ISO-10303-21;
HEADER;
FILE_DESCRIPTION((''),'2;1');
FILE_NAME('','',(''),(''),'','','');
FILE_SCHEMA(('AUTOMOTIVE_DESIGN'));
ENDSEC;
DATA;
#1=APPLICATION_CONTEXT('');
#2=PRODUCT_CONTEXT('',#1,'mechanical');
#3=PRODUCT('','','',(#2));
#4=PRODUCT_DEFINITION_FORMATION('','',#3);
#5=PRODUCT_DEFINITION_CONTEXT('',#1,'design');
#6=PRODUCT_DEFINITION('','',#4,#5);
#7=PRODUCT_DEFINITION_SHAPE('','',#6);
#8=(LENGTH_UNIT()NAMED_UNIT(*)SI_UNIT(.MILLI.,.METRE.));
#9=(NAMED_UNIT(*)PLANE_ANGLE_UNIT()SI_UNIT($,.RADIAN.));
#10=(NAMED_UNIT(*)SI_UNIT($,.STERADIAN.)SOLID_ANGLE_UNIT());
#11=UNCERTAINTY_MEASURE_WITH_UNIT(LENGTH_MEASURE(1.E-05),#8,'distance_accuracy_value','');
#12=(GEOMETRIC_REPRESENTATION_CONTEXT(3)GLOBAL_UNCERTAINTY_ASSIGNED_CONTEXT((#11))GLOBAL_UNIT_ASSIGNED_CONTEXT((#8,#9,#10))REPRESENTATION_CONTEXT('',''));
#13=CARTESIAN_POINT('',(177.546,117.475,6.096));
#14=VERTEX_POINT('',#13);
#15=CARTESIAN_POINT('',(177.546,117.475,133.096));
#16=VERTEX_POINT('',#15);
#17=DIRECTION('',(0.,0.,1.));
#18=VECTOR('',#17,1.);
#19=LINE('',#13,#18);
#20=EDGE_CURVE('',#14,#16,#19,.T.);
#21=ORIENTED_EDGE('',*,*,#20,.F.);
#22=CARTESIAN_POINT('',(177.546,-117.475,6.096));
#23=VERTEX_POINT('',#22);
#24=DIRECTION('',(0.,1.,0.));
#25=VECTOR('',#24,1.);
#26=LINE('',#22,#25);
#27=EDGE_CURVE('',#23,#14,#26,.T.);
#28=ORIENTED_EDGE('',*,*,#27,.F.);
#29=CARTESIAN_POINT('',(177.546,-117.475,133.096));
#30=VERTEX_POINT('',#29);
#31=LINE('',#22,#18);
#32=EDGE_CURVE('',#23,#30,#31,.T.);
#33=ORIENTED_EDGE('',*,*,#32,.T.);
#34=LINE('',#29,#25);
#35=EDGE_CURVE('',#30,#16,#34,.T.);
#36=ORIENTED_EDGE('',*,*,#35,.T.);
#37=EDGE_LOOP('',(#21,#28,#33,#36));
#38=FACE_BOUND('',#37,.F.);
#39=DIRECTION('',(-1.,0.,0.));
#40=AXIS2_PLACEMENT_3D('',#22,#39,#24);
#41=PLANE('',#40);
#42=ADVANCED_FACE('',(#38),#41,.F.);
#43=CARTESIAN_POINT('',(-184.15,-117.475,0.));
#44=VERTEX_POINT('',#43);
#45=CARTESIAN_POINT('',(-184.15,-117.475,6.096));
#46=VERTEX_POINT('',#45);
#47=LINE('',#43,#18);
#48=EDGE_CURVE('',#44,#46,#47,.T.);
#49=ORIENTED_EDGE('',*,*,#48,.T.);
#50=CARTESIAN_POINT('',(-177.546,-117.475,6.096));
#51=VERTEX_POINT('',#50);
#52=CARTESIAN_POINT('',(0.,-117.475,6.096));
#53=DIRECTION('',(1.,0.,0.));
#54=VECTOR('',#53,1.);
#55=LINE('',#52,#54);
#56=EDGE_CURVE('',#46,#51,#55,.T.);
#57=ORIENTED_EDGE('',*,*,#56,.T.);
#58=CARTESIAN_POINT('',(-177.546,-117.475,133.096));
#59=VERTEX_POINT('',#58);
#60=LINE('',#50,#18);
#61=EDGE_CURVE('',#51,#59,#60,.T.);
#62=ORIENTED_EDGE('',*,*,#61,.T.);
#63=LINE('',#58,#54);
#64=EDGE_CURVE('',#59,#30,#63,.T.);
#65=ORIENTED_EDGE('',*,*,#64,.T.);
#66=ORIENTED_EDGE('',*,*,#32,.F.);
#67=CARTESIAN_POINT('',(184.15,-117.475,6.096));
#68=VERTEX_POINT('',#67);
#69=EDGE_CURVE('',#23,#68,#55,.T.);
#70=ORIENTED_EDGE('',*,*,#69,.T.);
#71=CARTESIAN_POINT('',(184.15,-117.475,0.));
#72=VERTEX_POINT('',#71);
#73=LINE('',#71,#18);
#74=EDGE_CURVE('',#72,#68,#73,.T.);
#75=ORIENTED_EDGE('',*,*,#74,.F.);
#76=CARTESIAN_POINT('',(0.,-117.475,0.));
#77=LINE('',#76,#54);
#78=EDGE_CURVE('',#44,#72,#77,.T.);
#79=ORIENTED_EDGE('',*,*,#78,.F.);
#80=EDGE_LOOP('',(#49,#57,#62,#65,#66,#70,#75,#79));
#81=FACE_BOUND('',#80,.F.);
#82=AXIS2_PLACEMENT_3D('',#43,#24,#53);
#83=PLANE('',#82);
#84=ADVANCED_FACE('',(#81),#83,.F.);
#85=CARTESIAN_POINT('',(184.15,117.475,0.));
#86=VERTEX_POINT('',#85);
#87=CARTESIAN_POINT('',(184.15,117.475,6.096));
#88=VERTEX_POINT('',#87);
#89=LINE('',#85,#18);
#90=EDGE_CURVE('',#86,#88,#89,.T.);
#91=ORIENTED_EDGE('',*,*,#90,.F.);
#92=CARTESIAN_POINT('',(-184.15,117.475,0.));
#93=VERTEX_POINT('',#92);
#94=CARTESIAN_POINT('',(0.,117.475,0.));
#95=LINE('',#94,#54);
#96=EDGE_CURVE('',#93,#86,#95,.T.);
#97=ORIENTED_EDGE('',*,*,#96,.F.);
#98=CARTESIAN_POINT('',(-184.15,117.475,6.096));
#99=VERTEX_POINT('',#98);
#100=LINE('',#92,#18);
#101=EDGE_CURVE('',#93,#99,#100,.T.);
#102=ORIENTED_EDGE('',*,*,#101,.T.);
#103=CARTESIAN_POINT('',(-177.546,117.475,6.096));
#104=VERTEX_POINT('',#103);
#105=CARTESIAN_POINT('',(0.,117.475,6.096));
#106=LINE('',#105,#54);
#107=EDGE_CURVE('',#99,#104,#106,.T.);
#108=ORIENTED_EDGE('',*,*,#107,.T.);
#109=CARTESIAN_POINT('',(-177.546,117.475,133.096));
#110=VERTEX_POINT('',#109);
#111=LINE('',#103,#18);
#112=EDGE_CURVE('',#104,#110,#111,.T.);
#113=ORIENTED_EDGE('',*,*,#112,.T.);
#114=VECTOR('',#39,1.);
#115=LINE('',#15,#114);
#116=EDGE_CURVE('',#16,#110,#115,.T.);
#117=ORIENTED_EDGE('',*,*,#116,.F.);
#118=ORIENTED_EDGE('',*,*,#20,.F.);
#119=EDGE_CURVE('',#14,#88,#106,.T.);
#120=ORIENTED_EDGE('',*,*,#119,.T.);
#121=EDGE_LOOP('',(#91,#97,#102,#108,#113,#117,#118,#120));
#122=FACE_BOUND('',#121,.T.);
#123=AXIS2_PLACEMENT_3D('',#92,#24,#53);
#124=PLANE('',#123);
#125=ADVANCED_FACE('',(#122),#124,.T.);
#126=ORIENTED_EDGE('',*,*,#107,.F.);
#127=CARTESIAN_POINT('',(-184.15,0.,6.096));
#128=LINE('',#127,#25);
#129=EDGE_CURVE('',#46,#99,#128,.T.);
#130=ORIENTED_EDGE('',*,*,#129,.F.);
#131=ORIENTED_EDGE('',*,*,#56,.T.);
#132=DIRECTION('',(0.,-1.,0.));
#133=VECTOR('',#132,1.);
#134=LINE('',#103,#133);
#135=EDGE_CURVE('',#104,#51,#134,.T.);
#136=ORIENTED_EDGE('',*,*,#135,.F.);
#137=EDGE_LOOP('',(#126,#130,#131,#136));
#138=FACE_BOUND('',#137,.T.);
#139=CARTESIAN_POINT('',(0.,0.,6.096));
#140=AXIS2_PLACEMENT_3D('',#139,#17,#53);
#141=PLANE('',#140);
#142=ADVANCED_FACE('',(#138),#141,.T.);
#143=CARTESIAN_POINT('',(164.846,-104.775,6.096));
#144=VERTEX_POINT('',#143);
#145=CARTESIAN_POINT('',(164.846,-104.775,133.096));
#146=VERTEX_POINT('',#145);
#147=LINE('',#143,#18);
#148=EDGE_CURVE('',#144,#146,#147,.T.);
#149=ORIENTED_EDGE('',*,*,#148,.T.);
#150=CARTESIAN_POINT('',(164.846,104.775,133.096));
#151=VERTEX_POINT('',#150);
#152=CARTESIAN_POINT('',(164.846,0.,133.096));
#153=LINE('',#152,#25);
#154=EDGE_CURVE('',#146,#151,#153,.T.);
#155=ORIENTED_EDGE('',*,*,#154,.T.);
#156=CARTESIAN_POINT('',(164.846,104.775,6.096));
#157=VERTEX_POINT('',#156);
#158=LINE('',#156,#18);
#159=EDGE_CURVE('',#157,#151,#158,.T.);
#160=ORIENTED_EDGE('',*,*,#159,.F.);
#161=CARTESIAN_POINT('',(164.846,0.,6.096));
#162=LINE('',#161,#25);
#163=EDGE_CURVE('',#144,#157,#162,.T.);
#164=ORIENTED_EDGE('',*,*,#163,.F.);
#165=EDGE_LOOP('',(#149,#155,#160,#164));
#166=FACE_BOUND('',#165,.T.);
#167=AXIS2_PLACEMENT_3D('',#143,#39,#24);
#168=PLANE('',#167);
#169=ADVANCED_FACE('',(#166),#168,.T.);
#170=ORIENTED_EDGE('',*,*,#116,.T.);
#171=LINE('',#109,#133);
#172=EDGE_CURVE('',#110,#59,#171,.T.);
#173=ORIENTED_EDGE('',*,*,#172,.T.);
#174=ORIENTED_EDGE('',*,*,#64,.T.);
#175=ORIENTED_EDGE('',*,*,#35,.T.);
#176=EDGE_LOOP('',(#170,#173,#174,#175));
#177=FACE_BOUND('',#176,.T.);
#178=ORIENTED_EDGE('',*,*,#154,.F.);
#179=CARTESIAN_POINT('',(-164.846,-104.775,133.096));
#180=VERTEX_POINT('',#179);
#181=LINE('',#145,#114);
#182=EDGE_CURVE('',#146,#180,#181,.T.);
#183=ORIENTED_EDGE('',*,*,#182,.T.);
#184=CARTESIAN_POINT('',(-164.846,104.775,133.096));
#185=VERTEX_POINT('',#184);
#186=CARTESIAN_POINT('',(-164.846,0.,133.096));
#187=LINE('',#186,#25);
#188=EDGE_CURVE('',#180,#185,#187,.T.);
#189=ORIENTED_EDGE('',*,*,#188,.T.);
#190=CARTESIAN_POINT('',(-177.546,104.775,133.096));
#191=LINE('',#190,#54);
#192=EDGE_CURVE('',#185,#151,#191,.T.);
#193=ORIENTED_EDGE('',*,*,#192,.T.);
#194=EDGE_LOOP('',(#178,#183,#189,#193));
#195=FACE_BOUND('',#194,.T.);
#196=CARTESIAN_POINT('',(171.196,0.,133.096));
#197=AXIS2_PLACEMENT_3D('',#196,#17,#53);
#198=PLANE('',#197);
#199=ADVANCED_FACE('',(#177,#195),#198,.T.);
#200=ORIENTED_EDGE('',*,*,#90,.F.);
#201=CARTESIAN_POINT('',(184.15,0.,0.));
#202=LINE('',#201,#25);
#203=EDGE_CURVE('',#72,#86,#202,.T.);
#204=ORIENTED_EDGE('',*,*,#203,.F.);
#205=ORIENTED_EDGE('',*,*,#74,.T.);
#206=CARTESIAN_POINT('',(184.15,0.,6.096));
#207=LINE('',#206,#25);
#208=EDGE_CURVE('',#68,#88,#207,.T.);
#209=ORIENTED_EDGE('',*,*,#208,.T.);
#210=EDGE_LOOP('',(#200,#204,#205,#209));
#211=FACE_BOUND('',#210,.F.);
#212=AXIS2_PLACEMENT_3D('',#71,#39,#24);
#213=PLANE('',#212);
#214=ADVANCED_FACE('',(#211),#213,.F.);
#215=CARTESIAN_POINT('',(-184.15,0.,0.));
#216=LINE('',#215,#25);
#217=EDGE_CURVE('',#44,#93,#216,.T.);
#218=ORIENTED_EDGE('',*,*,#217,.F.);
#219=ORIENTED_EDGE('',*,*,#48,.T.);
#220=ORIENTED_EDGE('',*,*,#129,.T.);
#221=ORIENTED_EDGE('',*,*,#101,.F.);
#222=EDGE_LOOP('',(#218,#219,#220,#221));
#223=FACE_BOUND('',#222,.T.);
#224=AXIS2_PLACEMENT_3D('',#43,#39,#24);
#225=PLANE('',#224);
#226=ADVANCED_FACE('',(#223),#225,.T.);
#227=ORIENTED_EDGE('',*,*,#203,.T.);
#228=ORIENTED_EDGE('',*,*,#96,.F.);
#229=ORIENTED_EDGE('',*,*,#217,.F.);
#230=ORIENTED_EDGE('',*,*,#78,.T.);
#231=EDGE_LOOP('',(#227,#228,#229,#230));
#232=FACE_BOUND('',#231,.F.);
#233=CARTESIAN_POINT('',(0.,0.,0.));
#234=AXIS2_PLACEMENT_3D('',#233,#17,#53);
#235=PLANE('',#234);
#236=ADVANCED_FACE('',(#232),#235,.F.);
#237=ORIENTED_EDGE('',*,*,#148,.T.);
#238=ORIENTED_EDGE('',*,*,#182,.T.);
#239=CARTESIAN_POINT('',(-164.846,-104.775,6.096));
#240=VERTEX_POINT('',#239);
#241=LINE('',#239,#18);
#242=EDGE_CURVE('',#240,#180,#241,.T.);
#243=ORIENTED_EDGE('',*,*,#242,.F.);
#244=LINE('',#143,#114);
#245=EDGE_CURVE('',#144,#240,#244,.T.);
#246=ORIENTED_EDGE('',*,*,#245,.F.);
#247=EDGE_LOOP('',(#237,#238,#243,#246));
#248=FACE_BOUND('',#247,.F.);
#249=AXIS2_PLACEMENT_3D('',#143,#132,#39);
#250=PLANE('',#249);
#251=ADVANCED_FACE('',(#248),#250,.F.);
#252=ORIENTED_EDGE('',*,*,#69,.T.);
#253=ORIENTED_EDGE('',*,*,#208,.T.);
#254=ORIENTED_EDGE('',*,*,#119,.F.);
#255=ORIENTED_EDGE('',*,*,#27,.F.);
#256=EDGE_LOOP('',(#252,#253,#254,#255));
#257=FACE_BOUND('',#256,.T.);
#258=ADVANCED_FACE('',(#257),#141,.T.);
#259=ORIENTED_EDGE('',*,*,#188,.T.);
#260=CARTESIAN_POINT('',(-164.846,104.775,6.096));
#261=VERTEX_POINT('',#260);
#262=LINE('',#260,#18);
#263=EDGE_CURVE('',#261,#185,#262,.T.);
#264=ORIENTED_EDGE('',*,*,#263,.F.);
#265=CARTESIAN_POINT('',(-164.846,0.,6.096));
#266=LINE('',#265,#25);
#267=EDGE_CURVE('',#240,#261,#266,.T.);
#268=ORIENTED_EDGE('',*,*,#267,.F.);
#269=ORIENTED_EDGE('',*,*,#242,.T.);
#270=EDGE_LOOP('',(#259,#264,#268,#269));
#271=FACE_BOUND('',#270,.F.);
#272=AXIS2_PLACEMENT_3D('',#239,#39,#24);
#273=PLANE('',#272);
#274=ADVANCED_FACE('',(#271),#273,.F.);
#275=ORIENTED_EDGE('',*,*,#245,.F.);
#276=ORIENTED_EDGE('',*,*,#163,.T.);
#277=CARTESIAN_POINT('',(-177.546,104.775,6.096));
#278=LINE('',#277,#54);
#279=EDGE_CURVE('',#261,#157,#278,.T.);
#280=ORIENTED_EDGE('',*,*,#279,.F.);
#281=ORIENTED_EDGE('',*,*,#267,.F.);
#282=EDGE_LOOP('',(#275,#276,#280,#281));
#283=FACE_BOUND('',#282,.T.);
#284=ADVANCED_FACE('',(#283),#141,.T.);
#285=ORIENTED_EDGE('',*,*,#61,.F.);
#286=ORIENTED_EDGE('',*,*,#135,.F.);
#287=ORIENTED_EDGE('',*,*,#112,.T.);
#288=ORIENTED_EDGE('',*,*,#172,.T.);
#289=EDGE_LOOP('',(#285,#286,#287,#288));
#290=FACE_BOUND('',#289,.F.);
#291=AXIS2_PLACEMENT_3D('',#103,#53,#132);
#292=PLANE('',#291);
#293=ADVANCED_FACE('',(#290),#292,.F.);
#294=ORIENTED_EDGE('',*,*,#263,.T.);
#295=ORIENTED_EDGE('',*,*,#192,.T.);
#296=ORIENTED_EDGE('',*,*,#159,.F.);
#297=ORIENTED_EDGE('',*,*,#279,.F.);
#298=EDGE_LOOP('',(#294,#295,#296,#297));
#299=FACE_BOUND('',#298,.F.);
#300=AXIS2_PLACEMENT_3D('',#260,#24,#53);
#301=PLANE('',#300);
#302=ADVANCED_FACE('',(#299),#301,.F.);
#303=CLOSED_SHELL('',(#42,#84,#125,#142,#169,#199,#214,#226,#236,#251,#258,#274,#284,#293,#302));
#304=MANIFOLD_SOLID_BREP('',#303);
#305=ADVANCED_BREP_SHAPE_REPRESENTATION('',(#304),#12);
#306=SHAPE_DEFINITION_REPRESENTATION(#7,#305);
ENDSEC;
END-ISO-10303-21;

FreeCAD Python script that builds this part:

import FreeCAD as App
import Part
import Sketcher
Q = App.Units.Quantity

doc = App.newDocument("Part")
body = doc.addObject("PartDesign::Body", "Body")

# Sketch on XY plane
sketch1 = doc.addObject("Sketcher::SketchObject", "Sketch")
body.addObject(sketch1)
sketch1.AttachmentSupport = (doc.XY_Plane, [""])
sketch1.MapMode = "FlatFace"
sketch1.addGeometry([
    Part.LineSegment(App.Vector(-184, 117, 0), App.Vector(-184, -117, 0)),
    Part.LineSegment(App.Vector(-184, -117, 0), App.Vector(184, -117, 0)),
    Part.LineSegment(App.Vector(184, -117, 0), App.Vector(184, 117, 0)),
    Part.LineSegment(App.Vector(184, 117, 0), App.Vector(-184, 117, 0)),
], False)
sketch1.addConstraint([
    Sketcher.Constraint("Coincident", 0, 2, 1, 1),
    Sketcher.Constraint("Coincident", 1, 2, 2, 1),
    Sketcher.Constraint("Coincident", 2, 2, 3, 1),
    Sketcher.Constraint("Coincident", 3, 2, 0, 1),
    Sketcher.Constraint("Vertical", 0),
    Sketcher.Constraint("Horizontal", 1),
    Sketcher.Constraint("Vertical", 2),
    Sketcher.Constraint("Horizontal", 3),
    Sketcher.Constraint("Symmetric", 0, 2, 2, 2, -1, 1),
    Sketcher.Constraint("DistanceX", 1, 1, 1, 2, Q("14.5 in")),
    Sketcher.Constraint("DistanceY", 0, 2, 0, 1, Q("9.25 in")),
])
pad1 = doc.addObject("PartDesign::Pad", "Pad")
body.addObject(pad1)
pad1.Profile = sketch1
pad1.Length = Q("0.24 in")

# Sketch on XY plane
sketch2 = doc.addObject("Sketcher::SketchObject", "Sketch001")
body.addObject(sketch2)
sketch2.AttachmentSupport = (doc.XY_Plane, [""])
sketch2.MapMode = "FlatFace"
sketch2.AttachmentOffset = App.Placement(App.Vector(0, 0, 0.24 * 25.4), App.Rotation())
sketch2.addGeometry([
    Part.LineSegment(App.Vector(178, 117, 0), App.Vector(-178, 117, 0)),  # 0
    Part.LineSegment(App.Vector(-178, 117, 0), App.Vector(-178, -117, 0)),  # 1
    Part.LineSegment(App.Vector(-178, -117, 0), App.Vector(178, -117, 0)),  # 2
    Part.LineSegment(App.Vector(178, -117, 0), App.Vector(178, 117, 0)),  # 3
    Part.LineSegment(App.Vector(165, 105, 0), App.Vector(165, -105, 0)),  # 4
    Part.LineSegment(App.Vector(165, -105, 0), App.Vector(-165, -105, 0)),  # 5
    Part.LineSegment(App.Vector(-165, -105, 0), App.Vector(-165, 105, 0)),  # 6
    Part.LineSegment(App.Vector(-165, 105, 0), App.Vector(165, 105, 0)),  # 7
], False)
sketch2.addConstraint([
    Sketcher.Constraint("Coincident", 0, 2, 1, 1),
    Sketcher.Constraint("Coincident", 1, 2, 2, 1),
    Sketcher.Constraint("Coincident", 2, 2, 3, 1),
    Sketcher.Constraint("Coincident", 3, 2, 0, 1),
    Sketcher.Constraint("Coincident", 4, 2, 5, 1),
    Sketcher.Constraint("Coincident", 5, 2, 6, 1),
    Sketcher.Constraint("Coincident", 6, 2, 7, 1),
    Sketcher.Constraint("Coincident", 7, 2, 4, 1),
    Sketcher.Constraint("Horizontal", 0),
    Sketcher.Constraint("Vertical", 1),
    Sketcher.Constraint("Horizontal", 2),
    Sketcher.Constraint("Vertical", 3),
    Sketcher.Constraint("Vertical", 4),
    Sketcher.Constraint("Horizontal", 5),
    Sketcher.Constraint("Vertical", 6),
    Sketcher.Constraint("Horizontal", 7),
    Sketcher.Constraint("Symmetric", 0, 2, 2, 2, -1, 1),
    Sketcher.Constraint("Symmetric", 4, 2, 6, 2, -1, 1),
    Sketcher.Constraint("DistanceX", 0, 2, 0, 1, Q("13.98 in")),
    Sketcher.Constraint("DistanceX", 5, 2, 5, 1, Q("12.98 in")),
    Sketcher.Constraint("DistanceY", 1, 2, 1, 1, Q("9.25 in")),
    Sketcher.Constraint("DistanceY", 4, 2, 4, 1, Q("8.25 in")),
])
pad2 = doc.addObject("PartDesign::Pad", "Pad001")
body.addObject(pad2)
pad2.Profile = sketch2
pad2.Length = Q("5 in")

doc.recompute()
